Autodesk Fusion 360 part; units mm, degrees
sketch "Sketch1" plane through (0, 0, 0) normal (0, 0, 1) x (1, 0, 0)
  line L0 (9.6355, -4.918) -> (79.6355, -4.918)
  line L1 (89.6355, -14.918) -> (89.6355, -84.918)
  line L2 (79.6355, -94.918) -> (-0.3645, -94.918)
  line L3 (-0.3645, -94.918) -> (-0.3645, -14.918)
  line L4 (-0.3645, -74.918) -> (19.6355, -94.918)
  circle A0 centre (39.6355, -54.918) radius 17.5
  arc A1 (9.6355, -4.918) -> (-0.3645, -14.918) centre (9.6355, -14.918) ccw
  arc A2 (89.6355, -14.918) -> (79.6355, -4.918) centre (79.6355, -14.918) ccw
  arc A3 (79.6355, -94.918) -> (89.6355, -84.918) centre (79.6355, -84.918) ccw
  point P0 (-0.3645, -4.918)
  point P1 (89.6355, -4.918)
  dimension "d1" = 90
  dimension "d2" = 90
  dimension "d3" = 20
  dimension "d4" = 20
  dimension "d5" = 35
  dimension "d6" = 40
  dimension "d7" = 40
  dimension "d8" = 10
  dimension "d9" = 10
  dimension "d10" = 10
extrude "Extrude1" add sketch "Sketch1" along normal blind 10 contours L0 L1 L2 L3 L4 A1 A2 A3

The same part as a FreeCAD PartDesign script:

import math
import FreeCAD as App
import Part
import Sketcher
from FreeCAD import Vector

doc = App.newDocument("Part")
body = doc.addObject("PartDesign::Body", "Body")

sketch1 = body.newObject("Sketcher::SketchObject", "Sketch")
sketch1.AttachmentSupport = (doc.getObject("XY_Plane"), [""])
sketch1.MapMode = "FlatFace"
sketch1.addGeometry([
    Part.LineSegment(Vector(79.6355, -4.918, 0), Vector(9.6355, -4.918, 0)),
    Part.ArcOfCircle(Part.Circle(Vector(9.6355, -14.918, 0), Vector(0, 0, 1), 10), math.radians(90), math.radians(180)),
    Part.LineSegment(Vector(-0.3645, -14.918, 0), Vector(-0.3645, -74.918, 0)),
    Part.LineSegment(Vector(-0.3645, -74.918, 0), Vector(19.6355, -94.918, 0)),
    Part.LineSegment(Vector(19.6355, -94.918, 0), Vector(79.6355, -94.918, 0)),
    Part.ArcOfCircle(Part.Circle(Vector(79.6355, -84.918, 0), Vector(0, 0, 1), 10), math.radians(-90), math.radians(0)),
    Part.LineSegment(Vector(89.6355, -84.918, 0), Vector(89.6355, -14.918, 0)),
    Part.ArcOfCircle(Part.Circle(Vector(79.6355, -14.918, 0), Vector(0, 0, 1), 10), math.radians(0), math.radians(90)),
    Part.Circle(Vector(39.6355, -54.918, 0), Vector(0, 0, 1), 17.5),
], False)
sketch1.addConstraint([
    Sketcher.Constraint("Tangent", 0, 2, 1, 1),
    Sketcher.Constraint("Tangent", 1, 2, 2, 1),
    Sketcher.Constraint("Coincident", 2, 2, 3, 1),
    Sketcher.Constraint("Coincident", 3, 2, 4, 1),
    Sketcher.Constraint("Tangent", 4, 2, 5, 1),
    Sketcher.Constraint("Tangent", 5, 2, 6, 1),
    Sketcher.Constraint("Tangent", 6, 2, 7, 1),
    Sketcher.Constraint("Tangent", 7, 2, 0, 1),
    Sketcher.Constraint("Horizontal", 0),
    Sketcher.Constraint("Vertical", 2),
    Sketcher.Constraint("Horizontal", 4),
    Sketcher.Constraint("Vertical", 6),
    Sketcher.Constraint("Equal", 1, 5),
    Sketcher.Constraint("Equal", 5, 7),
    Sketcher.Constraint("Equal", 4, 2),
    Sketcher.Constraint("Equal", 0, 6),
    Sketcher.Constraint("Diameter", 8, 35.0),
    Sketcher.Constraint("Radius", 1, 10.0),
    Sketcher.Constraint("DistanceY", 8, 3, 1, 3, 40.0),
    Sketcher.Constraint("DistanceX", 8, 3, 5, 3, 40.0),
    Sketcher.Constraint("DistanceX", 1, 2, 8, 3, 40.0),
    Sketcher.Constraint("DistanceY", 2, 2, 8, 3, 20.0),
    Sketcher.Constraint("DistanceY", 1, 3, -1, 1, 14.918),
    Sketcher.Constraint("DistanceX", -1, 1, 1, 3, 9.6355),
])
pad1 = body.newObject("PartDesign::Pad", "Pad")
pad1.Profile = sketch1
pad1.Length = 10

doc.recompute()
